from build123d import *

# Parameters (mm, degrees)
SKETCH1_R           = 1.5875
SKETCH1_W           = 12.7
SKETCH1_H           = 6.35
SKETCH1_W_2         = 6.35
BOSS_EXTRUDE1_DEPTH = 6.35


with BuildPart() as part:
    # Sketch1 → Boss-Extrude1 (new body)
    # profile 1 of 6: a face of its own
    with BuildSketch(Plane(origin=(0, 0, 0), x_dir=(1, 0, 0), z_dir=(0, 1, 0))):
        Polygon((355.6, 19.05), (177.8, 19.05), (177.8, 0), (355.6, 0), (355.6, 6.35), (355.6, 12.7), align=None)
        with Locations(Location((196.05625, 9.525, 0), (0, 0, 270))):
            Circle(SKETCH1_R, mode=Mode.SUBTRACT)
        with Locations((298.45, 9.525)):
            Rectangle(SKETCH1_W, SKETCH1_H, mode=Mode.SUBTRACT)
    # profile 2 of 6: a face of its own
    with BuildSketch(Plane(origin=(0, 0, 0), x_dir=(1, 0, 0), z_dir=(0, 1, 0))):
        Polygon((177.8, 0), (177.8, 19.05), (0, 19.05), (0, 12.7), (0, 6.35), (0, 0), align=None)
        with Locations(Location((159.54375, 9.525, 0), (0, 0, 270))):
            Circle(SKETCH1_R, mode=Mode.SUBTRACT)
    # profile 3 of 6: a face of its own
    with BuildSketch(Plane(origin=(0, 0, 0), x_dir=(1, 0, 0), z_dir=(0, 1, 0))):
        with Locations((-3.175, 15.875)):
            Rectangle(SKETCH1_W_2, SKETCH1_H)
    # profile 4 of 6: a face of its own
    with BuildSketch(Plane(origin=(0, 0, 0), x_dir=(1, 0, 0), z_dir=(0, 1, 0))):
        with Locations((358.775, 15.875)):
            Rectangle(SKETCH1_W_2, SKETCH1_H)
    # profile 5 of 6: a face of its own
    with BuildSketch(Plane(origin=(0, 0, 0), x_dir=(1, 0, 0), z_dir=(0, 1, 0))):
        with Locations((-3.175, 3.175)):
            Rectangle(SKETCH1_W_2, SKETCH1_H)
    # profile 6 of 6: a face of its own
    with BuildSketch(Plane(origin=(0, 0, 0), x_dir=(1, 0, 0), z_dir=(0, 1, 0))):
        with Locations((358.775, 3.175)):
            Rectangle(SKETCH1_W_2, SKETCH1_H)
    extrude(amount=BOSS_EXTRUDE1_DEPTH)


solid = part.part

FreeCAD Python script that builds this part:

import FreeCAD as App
import Part
import Sketcher
Q = App.Units.Quantity

doc = App.newDocument("Part")
body = doc.addObject("PartDesign::Body", "Body")

# Sketch on XZ plane
sketch1 = doc.addObject("Sketcher::SketchObject", "Sketch")
body.addObject(sketch1)
sketch1.AttachmentSupport = (doc.XZ_Plane, [""])
sketch1.MapMode = "FlatFace"
sketch1.addGeometry(Part.LineSegment(App.Vector(-6.3, -19.1, 0), App.Vector(-6.3, -12.7, 0)), False)
sketch1.addGeometry(Part.LineSegment(App.Vector(-6.3, -12.7, 0), App.Vector(0, -12.7, 0)), False)
sketch1.addGeometry(Part.LineSegment(App.Vector(0, -12.7, 0), App.Vector(0, -6.3, 0)), False)
sketch1.addGeometry(Part.LineSegment(App.Vector(0, -6.3, 0), App.Vector(-6.3, -6.3, 0)), False)
sketch1.addGeometry(Part.LineSegment(App.Vector(-6.3, -6.3, 0), App.Vector(-6.3, 0, 0)), False)
sketch1.addGeometry(Part.LineSegment(App.Vector(-6.3, 0, 0), App.Vector(361.9, 0, 0)), False)
sketch1.addGeometry(Part.LineSegment(App.Vector(361.9, 0, 0), App.Vector(361.9, -6.3, 0)), False)
sketch1.addGeometry(Part.LineSegment(App.Vector(361.9, -6.3, 0), App.Vector(355.6, -6.3, 0)), False)
sketch1.addGeometry(Part.LineSegment(App.Vector(355.6, -6.3, 0), App.Vector(355.6, -12.7, 0)), False)
sketch1.addGeometry(Part.LineSegment(App.Vector(355.6, -12.7, 0), App.Vector(361.9, -12.7, 0)), False)
sketch1.addGeometry(Part.LineSegment(App.Vector(361.9, -12.7, 0), App.Vector(361.9, -19.1, 0)), False)
sketch1.addGeometry(Part.LineSegment(App.Vector(361.9, -19.1, 0), App.Vector(-6.3, -19.1, 0)), False)
sketch1.addGeometry(Part.Circle(App.Vector(196.1, -9.5, 0), App.Vector(0, 0, 1), 1.6), False)
sketch1.addGeometry(Part.LineSegment(App.Vector(304.8, -6.3, 0), App.Vector(292.1, -6.3, 0)), False)
sketch1.addGeometry(Part.LineSegment(App.Vector(292.1, -6.3, 0), App.Vector(292.1, -12.7, 0)), False)
sketch1.addGeometry(Part.LineSegment(App.Vector(292.1, -12.7, 0), App.Vector(304.8, -12.7, 0)), False)
sketch1.addGeometry(Part.LineSegment(App.Vector(304.8, -12.7, 0), App.Vector(304.8, -6.3, 0)), False)
sketch1.addGeometry(Part.Circle(App.Vector(159.5, -9.5, 0), App.Vector(0, 0, 1), 1.6), False)
sketch1.addConstraint(Sketcher.Constraint("Coincident", 0, 2, 1, 1))
sketch1.addConstraint(Sketcher.Constraint("Coincident", 1, 2, 2, 1))
sketch1.addConstraint(Sketcher.Constraint("Coincident", 2, 2, 3, 1))
sketch1.addConstraint(Sketcher.Constraint("Coincident", 3, 2, 4, 1))
sketch1.addConstraint(Sketcher.Constraint("Coincident", 4, 2, 5, 1))
sketch1.addConstraint(Sketcher.Constraint("Coincident", 5, 2, 6, 1))
sketch1.addConstraint(Sketcher.Constraint("Coincident", 6, 2, 7, 1))
sketch1.addConstraint(Sketcher.Constraint("Coincident", 7, 2, 8, 1))
sketch1.addConstraint(Sketcher.Constraint("Coincident", 8, 2, 9, 1))
sketch1.addConstraint(Sketcher.Constraint("Coincident", 9, 2, 10, 1))
sketch1.addConstraint(Sketcher.Constraint("Coincident", 10, 2, 11, 1))
sketch1.addConstraint(Sketcher.Constraint("Coincident", 11, 2, 0, 1))
sketch1.addConstraint(Sketcher.Constraint("Coincident", 13, 2, 14, 1))
sketch1.addConstraint(Sketcher.Constraint("Coincident", 14, 2, 15, 1))
sketch1.addConstraint(Sketcher.Constraint("Coincident", 15, 2, 16, 1))
sketch1.addConstraint(Sketcher.Constraint("Coincident", 16, 2, 13, 1))
sketch1.addConstraint(Sketcher.Constraint("Vertical", 0))
sketch1.addConstraint(Sketcher.Constraint("Horizontal", 1))
sketch1.addConstraint(Sketcher.Constraint("Vertical", 2))
sketch1.addConstraint(Sketcher.Constraint("Horizontal", 3))
sketch1.addConstraint(Sketcher.Constraint("Vertical", 4))
sketch1.addConstraint(Sketcher.Constraint("Horizontal", 5))
sketch1.addConstraint(Sketcher.Constraint("Vertical", 6))
sketch1.addConstraint(Sketcher.Constraint("Horizontal", 7))
sketch1.addConstraint(Sketcher.Constraint("Vertical", 8))
sketch1.addConstraint(Sketcher.Constraint("Horizontal", 9))
sketch1.addConstraint(Sketcher.Constraint("Vertical", 10))
sketch1.addConstraint(Sketcher.Constraint("Horizontal", 11))
sketch1.addConstraint(Sketcher.Constraint("Horizontal", 13))
sketch1.addConstraint(Sketcher.Constraint("Vertical", 14))
sketch1.addConstraint(Sketcher.Constraint("Horizontal", 15))
sketch1.addConstraint(Sketcher.Constraint("Vertical", 16))
sketch1.addConstraint(Sketcher.Constraint("Equal", 12, 17))
sketch1.addConstraint(Sketcher.Constraint("PointOnObject", 1, 2, -2))
sketch1.addConstraint(Sketcher.Constraint("PointOnObject", 4, 2, -1))
sketch1.addConstraint(Sketcher.Constraint("Horizontal", 12, 3, 17, 3))
sketch1.addConstraint(Sketcher.Constraint("Horizontal", 3, 2, 6, 2))
sketch1.addConstraint(Sketcher.Constraint("Horizontal", 1, 2, 8, 2))
sketch1.addConstraint(Sketcher.Constraint("Horizontal", 7, 2, 13, 2))
sketch1.addConstraint(Sketcher.Constraint("Horizontal", 9, 2, 14, 2))
sketch1.addConstraint(Sketcher.Constraint("Vertical", 0, 2, 3, 2))
sketch1.addConstraint(Sketcher.Constraint("Vertical", 6, 2, 9, 2))
sketch1.addConstraint(Sketcher.Constraint("Equal", 3, 7))
sketch1.addConstraint(Sketcher.Constraint("Equal", 9, 0))
sketch1.addConstraint(Sketcher.Constraint("Equal", 0, 2))
sketch1.addConstraint(Sketcher.Constraint("Equal", 2, 4))
sketch1.addConstraint(Sketcher.Constraint("Diameter", 12, Q("0.125 in")))
sketch1.addConstraint(Sketcher.Constraint("DistanceX", 5, 1, 5, 2, Q("14.5 in")))
sketch1.addConstraint(Sketcher.Constraint("DistanceX", 13, 2, 13, 1, Q("0.5 in")))
sketch1.addConstraint(Sketcher.Constraint("DistanceX", -1, 1, 7, 2, Q("14 in")))
sketch1.addConstraint(Sketcher.Constraint("DistanceX", -1, 1, 15, 2, Q("12 in")))
sketch1.addConstraint(Sketcher.Constraint("DistanceX", -1, 1, 12, 3, Q("7.71875 in")))
sketch1.addConstraint(Sketcher.Constraint("DistanceY", 12, 3, -1, 1, Q("0.375 in")))
sketch1.addConstraint(Sketcher.Constraint("DistanceX", -1, 1, 17, 3, Q("6.28125 in")))
pad1 = doc.addObject("PartDesign::Pad", "Pad")
body.addObject(pad1)
pad1.Profile = sketch1
pad1.Length = Q("0.25 in")
pad1.Reversed = True

doc.recompute()
